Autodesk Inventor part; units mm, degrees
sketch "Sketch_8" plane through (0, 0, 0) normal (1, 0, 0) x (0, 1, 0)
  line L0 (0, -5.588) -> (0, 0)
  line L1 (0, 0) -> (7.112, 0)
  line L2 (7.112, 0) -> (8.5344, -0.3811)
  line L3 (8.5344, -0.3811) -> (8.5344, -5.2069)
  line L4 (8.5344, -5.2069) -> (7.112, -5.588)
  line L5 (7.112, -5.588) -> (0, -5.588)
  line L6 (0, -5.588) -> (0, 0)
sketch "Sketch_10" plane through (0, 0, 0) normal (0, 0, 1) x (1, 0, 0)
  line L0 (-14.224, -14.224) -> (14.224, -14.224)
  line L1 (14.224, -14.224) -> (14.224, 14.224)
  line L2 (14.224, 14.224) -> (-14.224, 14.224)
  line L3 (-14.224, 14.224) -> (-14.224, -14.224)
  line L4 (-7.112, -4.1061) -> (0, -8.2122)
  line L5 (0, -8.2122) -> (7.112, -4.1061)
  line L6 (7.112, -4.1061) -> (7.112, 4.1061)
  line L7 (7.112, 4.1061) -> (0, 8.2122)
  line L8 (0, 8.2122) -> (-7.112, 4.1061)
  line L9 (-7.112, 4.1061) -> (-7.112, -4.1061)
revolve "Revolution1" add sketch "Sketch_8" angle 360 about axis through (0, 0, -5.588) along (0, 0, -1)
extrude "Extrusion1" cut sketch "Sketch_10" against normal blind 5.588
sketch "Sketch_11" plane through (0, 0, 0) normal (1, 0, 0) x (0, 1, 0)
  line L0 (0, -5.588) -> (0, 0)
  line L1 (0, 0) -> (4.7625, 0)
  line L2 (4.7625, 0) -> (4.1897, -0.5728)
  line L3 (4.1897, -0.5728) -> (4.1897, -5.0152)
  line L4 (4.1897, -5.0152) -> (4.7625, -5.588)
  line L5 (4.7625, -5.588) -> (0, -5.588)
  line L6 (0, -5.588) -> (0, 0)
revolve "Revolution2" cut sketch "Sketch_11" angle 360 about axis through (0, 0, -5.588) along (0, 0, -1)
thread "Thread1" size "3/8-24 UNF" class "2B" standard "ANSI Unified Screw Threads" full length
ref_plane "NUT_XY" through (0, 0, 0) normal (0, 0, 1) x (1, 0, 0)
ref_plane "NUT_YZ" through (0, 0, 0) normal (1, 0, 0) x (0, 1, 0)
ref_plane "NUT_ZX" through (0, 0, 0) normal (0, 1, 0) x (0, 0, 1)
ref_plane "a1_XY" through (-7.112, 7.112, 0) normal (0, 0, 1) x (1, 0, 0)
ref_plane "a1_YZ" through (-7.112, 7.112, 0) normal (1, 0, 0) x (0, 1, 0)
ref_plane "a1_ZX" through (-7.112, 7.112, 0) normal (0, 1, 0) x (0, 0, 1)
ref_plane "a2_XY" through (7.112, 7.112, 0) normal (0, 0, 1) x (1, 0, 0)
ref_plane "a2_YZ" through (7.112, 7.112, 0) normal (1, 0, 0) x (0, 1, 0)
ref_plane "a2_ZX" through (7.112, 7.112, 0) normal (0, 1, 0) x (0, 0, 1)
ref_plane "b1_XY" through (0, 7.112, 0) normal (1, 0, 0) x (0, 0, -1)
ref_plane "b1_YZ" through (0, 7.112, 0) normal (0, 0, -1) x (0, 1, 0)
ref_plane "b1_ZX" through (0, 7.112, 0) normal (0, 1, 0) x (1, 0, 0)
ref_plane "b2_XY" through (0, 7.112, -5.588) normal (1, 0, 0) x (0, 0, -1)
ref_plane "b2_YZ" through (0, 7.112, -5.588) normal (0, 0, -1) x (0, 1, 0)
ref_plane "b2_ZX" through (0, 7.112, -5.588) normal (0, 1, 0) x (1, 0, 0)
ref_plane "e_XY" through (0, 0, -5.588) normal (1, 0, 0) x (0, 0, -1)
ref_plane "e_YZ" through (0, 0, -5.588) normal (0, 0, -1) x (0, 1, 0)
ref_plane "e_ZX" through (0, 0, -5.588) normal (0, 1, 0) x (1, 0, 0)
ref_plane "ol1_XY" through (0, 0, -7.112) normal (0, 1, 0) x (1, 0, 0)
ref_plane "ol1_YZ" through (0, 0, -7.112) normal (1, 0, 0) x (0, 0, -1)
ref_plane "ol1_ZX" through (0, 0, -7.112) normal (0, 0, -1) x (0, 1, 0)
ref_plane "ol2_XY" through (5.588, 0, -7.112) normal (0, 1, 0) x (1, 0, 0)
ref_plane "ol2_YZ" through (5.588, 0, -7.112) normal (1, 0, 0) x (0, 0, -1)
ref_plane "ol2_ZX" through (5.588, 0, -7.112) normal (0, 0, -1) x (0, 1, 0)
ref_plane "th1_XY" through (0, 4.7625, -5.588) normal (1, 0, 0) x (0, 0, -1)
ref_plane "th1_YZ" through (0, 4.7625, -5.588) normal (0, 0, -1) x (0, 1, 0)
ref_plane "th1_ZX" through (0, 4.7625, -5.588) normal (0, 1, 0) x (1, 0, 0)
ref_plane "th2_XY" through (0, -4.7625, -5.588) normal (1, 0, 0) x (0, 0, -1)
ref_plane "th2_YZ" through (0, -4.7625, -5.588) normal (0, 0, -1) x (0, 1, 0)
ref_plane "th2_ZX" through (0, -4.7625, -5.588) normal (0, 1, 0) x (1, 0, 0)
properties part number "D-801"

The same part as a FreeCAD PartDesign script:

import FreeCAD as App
import Part
import Sketcher

V = App.Vector
Q = App.Units.Quantity

doc = App.newDocument("Part")
body = doc.addObject("PartDesign::Body", "Body")

sketch1 = body.newObject("Sketcher::SketchObject", "Sketch")
sketch1.AttachmentSupport = (doc.getObject("YZ_Plane"), [""])
sketch1.MapMode = "FlatFace"
sketch1.addGeometry(Part.LineSegment(V(0, 0, 0), V(0, -5.6, 0)), False)
sketch1.addGeometry(Part.LineSegment(V(0, -5.6, 0), V(7.1, -5.6, 0)), False)
sketch1.addGeometry(Part.LineSegment(V(7.1, -5.6, 0), V(8.5, -5.2, 0)), False)
sketch1.addGeometry(Part.LineSegment(V(8.5, -5.2, 0), V(8.5, -0.4, 0)), False)
sketch1.addGeometry(Part.LineSegment(V(8.5, -0.4, 0), V(7.1, 0, 0)), False)
sketch1.addGeometry(Part.LineSegment(V(7.1, 0, 0), V(0, 0, 0)), False)
sketch1.addConstraint(Sketcher.Constraint("Coincident", 0, 2, 1, 1))
sketch1.addConstraint(Sketcher.Constraint("Coincident", 1, 2, 2, 1))
sketch1.addConstraint(Sketcher.Constraint("Coincident", 2, 2, 3, 1))
sketch1.addConstraint(Sketcher.Constraint("Coincident", 3, 2, 4, 1))
sketch1.addConstraint(Sketcher.Constraint("Coincident", 4, 2, 5, 1))
sketch1.addConstraint(Sketcher.Constraint("Coincident", 5, 2, 0, 1))
sketch1.addConstraint(Sketcher.Constraint("Vertical", 0))
sketch1.addConstraint(Sketcher.Constraint("Horizontal", 1))
sketch1.addConstraint(Sketcher.Constraint("Vertical", 3))
sketch1.addConstraint(Sketcher.Constraint("Horizontal", 5))
sketch1.addConstraint(Sketcher.Constraint("Coincident", 5, 2, -1, 1))
sketch1.addConstraint(Sketcher.Constraint("Vertical", 1, 2, 4, 2))
sketch1.addConstraint(Sketcher.Constraint("Equal", 2, 4))
sketch1.addConstraint(Sketcher.Constraint("Angle", 2, Q("14.9988 deg")))
sketch1.addConstraint(Sketcher.Constraint("DistanceX", 1, 1, 1, 2, Q("0.28 in")))
sketch1.addConstraint(Sketcher.Constraint("DistanceY", 0, 2, 0, 1, Q("0.22 in")))
sketch1.addConstraint(Sketcher.Constraint("DistanceY", 3, 1, 3, 2, Q("0.19 in")))
revolution = body.newObject("PartDesign::Revolution", "Revolution")
revolution.Profile = sketch1
revolution.ReferenceAxis = (sketch1, ["V_Axis"])
revolution.Angle = 360

sketch2 = body.newObject("Sketcher::SketchObject", "Sketch001")
sketch2.AttachmentSupport = (doc.getObject("XY_Plane"), [""])
sketch2.MapMode = "FlatFace"
sketch2.addGeometry(Part.LineSegment(V(-14, 14, 0), V(-14, -14, 0)), False)
sketch2.addGeometry(Part.LineSegment(V(-14, -14, 0), V(14, -14, 0)), False)
sketch2.addGeometry(Part.LineSegment(V(14, -14, 0), V(14, 14, 0)), False)
sketch2.addGeometry(Part.LineSegment(V(14, 14, 0), V(-14, 14, 0)), False)
sketch2.addGeometry(Part.LineSegment(V(0, -8, 0), V(-7, -4, 0)), False)
sketch2.addGeometry(Part.LineSegment(V(-7, -4, 0), V(-7, 4, 0)), False)
sketch2.addGeometry(Part.LineSegment(V(-7, 4, 0), V(0, 8, 0)), False)
sketch2.addGeometry(Part.LineSegment(V(0, 8, 0), V(7, 4, 0)), False)
sketch2.addGeometry(Part.LineSegment(V(7, 4, 0), V(7, -4, 0)), False)
sketch2.addGeometry(Part.LineSegment(V(7, -4, 0), V(0, -8, 0)), False)
sketch2.addConstraint(Sketcher.Constraint("Coincident", 0, 2, 1, 1))
sketch2.addConstraint(Sketcher.Constraint("Coincident", 1, 2, 2, 1))
sketch2.addConstraint(Sketcher.Constraint("Coincident", 2, 2, 3, 1))
sketch2.addConstraint(Sketcher.Constraint("Coincident", 3, 2, 0, 1))
sketch2.addConstraint(Sketcher.Constraint("Coincident", 4, 2, 5, 1))
sketch2.addConstraint(Sketcher.Constraint("Coincident", 5, 2, 6, 1))
sketch2.addConstraint(Sketcher.Constraint("Coincident", 6, 2, 7, 1))
sketch2.addConstraint(Sketcher.Constraint("Coincident", 7, 2, 8, 1))
sketch2.addConstraint(Sketcher.Constraint("Coincident", 8, 2, 9, 1))
sketch2.addConstraint(Sketcher.Constraint("Coincident", 9, 2, 4, 1))
sketch2.addConstraint(Sketcher.Constraint("Vertical", 0))
sketch2.addConstraint(Sketcher.Constraint("Horizontal", 1))
sketch2.addConstraint(Sketcher.Constraint("Vertical", 2))
sketch2.addConstraint(Sketcher.Constraint("Horizontal", 3))
sketch2.addConstraint(Sketcher.Constraint("Vertical", 5))
sketch2.addConstraint(Sketcher.Constraint("Vertical", 8))
sketch2.addConstraint(Sketcher.Constraint("Symmetric", 0, 2, 2, 2, -1, 1))
sketch2.addConstraint(Sketcher.Constraint("Symmetric", 4, 2, 7, 2, -1, 1))
sketch2.addConstraint(Sketcher.Constraint("Symmetric", 6, 2, 9, 2, -1, 1))
sketch2.addConstraint(Sketcher.Constraint("PointOnObject", 6, 2, -2))
sketch2.addConstraint(Sketcher.Constraint("Parallel", 6, 9))
sketch2.addConstraint(Sketcher.Constraint("Horizontal", 5, 2, 7, 2))
sketch2.addConstraint(Sketcher.Constraint("Equal", 3, 0))
sketch2.addConstraint(Sketcher.Constraint("Angle", 4, Q("150 deg")))
sketch2.addConstraint(Sketcher.Constraint("DistanceX", 1, 1, 1, 2, Q("1.12 in")))
sketch2.addConstraint(Sketcher.Constraint("DistanceX", 4, 2, -1, 1, Q("0.28 in")))
sketch2.addConstraint(Sketcher.Constraint("DistanceY", 5, 1, 5, 2, Q("8.2122 mm")))
pocket1 = body.newObject("PartDesign::Pocket", "Pocket")
pocket1.Profile = sketch2
pocket1.Length = Q("0.22 in")

sketch3 = body.newObject("Sketcher::SketchObject", "Sketch002")
sketch3.AttachmentSupport = (doc.getObject("YZ_Plane"), [""])
sketch3.MapMode = "FlatFace"
sketch3.addGeometry(Part.LineSegment(V(0, 0, 0), V(0, -5.6, 0)), False)
sketch3.addGeometry(Part.LineSegment(V(0, -5.6, 0), V(4.8, -5.6, 0)), False)
sketch3.addGeometry(Part.LineSegment(V(4.8, -5.6, 0), V(4.2, -5, 0)), False)
sketch3.addGeometry(Part.LineSegment(V(4.2, -5, 0), V(4.2, -0.6, 0)), False)
sketch3.addGeometry(Part.LineSegment(V(4.2, -0.6, 0), V(4.8, 0, 0)), False)
sketch3.addGeometry(Part.LineSegment(V(4.8, 0, 0), V(0, 0, 0)), False)
sketch3.addConstraint(Sketcher.Constraint("Coincident", 0, 2, 1, 1))
sketch3.addConstraint(Sketcher.Constraint("Coincident", 1, 2, 2, 1))
sketch3.addConstraint(Sketcher.Constraint("Coincident", 2, 2, 3, 1))
sketch3.addConstraint(Sketcher.Constraint("Coincident", 3, 2, 4, 1))
sketch3.addConstraint(Sketcher.Constraint("Coincident", 4, 2, 5, 1))
sketch3.addConstraint(Sketcher.Constraint("Coincident", 5, 2, 0, 1))
sketch3.addConstraint(Sketcher.Constraint("Vertical", 0))
sketch3.addConstraint(Sketcher.Constraint("Horizontal", 1))
sketch3.addConstraint(Sketcher.Constraint("Vertical", 3))
sketch3.addConstraint(Sketcher.Constraint("Horizontal", 5))
sketch3.addConstraint(Sketcher.Constraint("Coincident", 5, 2, -1, 1))
sketch3.addConstraint(Sketcher.Constraint("Perpendicular", 2, 4))
sketch3.addConstraint(Sketcher.Constraint("Vertical", 1, 2, 4, 2))
sketch3.addConstraint(Sketcher.Constraint("Equal", 2, 4))
sketch3.addConstraint(Sketcher.Constraint("DistanceY", 0, 2, 0, 1, Q("0.22 in")))
sketch3.addConstraint(Sketcher.Constraint("DistanceX", 1, 1, 1, 2, Q("0.1875 in")))
sketch3.addConstraint(Sketcher.Constraint("DistanceY", 3, 1, 3, 2, Q("0.1749 in")))
groove = body.newObject("PartDesign::Groove", "Groove")
groove.Profile = sketch3
groove.ReferenceAxis = (sketch3, ["V_Axis"])
groove.Angle = 360

doc.recompute()
